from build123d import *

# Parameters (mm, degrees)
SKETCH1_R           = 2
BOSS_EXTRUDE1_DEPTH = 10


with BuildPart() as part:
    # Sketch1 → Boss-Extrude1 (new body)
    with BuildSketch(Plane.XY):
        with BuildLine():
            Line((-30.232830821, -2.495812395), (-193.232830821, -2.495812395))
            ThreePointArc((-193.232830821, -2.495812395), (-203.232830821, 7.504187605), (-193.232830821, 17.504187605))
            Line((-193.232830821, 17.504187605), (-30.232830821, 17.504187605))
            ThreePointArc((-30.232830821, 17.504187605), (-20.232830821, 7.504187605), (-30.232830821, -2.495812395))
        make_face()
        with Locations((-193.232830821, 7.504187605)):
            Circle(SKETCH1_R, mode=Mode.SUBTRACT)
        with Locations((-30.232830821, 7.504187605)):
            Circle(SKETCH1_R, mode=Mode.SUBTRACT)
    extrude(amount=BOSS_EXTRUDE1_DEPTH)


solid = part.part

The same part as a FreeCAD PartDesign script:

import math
import FreeCAD as App
import Part
import Sketcher
Q = App.Units.Quantity

doc = App.newDocument("Part")
body = doc.addObject("PartDesign::Body", "Body")

# Sketch on XY plane
sketch1 = body.newObject("Sketcher::SketchObject", "Sketch")
sketch1.AttachmentSupport = (doc.getObject("XY_Plane"), [""])
sketch1.MapMode = "FlatFace"
sketch1.addGeometry(Part.LineSegment(App.Vector(-193.2, -2.5, 0), App.Vector(-30.2, -2.5, 0)), False)
sketch1.addGeometry(Part.ArcOfCircle(Part.Circle(App.Vector(-30.2, 7.5, 0), App.Vector(0, 0, 1), 10), math.radians(-90), math.radians(90)), False)
sketch1.addGeometry(Part.LineSegment(App.Vector(-30.2, 17.5, 0), App.Vector(-193.2, 17.5, 0)), False)
sketch1.addGeometry(Part.ArcOfCircle(Part.Circle(App.Vector(-193.2, 7.5, 0), App.Vector(0, 0, 1), 10), math.radians(90), math.radians(270)), False)
sketch1.addGeometry(Part.Circle(App.Vector(-30.2, 7.5, 0), App.Vector(0, 0, 1), 2), False)
sketch1.addGeometry(Part.Circle(App.Vector(-193.2, 7.5, 0), App.Vector(0, 0, 1), 2), False)
sketch1.addConstraint(Sketcher.Constraint("Tangent", 0, 2, 1, 1))
sketch1.addConstraint(Sketcher.Constraint("Tangent", 1, 2, 2, 1))
sketch1.addConstraint(Sketcher.Constraint("Tangent", 2, 2, 3, 1))
sketch1.addConstraint(Sketcher.Constraint("Tangent", 3, 2, 0, 1))
sketch1.addConstraint(Sketcher.Constraint("Horizontal", 0))
sketch1.addConstraint(Sketcher.Constraint("Horizontal", 2))
sketch1.addConstraint(Sketcher.Constraint("Coincident", 4, 3, 1, 3))
sketch1.addConstraint(Sketcher.Constraint("Coincident", 5, 3, 3, 3))
sketch1.addConstraint(Sketcher.Constraint("Equal", 4, 5))
sketch1.addConstraint(Sketcher.Constraint("Diameter", 4, Q("4 mm")))
sketch1.addConstraint(Sketcher.Constraint("Radius", 1, Q("10 mm")))
sketch1.addConstraint(Sketcher.Constraint("DistanceX", 0, 1, 0, 2, Q("163 mm")))
sketch1.addConstraint(Sketcher.Constraint("DistanceX", 1, 3, -1, 1, Q("30.232831 mm")))
sketch1.addConstraint(Sketcher.Constraint("DistanceY", -1, 1, 1, 3, Q("7.504188 mm")))
pad1 = body.newObject("PartDesign::Pad", "Pad")
pad1.Profile = sketch1
pad1.Length = 10

doc.recompute()
